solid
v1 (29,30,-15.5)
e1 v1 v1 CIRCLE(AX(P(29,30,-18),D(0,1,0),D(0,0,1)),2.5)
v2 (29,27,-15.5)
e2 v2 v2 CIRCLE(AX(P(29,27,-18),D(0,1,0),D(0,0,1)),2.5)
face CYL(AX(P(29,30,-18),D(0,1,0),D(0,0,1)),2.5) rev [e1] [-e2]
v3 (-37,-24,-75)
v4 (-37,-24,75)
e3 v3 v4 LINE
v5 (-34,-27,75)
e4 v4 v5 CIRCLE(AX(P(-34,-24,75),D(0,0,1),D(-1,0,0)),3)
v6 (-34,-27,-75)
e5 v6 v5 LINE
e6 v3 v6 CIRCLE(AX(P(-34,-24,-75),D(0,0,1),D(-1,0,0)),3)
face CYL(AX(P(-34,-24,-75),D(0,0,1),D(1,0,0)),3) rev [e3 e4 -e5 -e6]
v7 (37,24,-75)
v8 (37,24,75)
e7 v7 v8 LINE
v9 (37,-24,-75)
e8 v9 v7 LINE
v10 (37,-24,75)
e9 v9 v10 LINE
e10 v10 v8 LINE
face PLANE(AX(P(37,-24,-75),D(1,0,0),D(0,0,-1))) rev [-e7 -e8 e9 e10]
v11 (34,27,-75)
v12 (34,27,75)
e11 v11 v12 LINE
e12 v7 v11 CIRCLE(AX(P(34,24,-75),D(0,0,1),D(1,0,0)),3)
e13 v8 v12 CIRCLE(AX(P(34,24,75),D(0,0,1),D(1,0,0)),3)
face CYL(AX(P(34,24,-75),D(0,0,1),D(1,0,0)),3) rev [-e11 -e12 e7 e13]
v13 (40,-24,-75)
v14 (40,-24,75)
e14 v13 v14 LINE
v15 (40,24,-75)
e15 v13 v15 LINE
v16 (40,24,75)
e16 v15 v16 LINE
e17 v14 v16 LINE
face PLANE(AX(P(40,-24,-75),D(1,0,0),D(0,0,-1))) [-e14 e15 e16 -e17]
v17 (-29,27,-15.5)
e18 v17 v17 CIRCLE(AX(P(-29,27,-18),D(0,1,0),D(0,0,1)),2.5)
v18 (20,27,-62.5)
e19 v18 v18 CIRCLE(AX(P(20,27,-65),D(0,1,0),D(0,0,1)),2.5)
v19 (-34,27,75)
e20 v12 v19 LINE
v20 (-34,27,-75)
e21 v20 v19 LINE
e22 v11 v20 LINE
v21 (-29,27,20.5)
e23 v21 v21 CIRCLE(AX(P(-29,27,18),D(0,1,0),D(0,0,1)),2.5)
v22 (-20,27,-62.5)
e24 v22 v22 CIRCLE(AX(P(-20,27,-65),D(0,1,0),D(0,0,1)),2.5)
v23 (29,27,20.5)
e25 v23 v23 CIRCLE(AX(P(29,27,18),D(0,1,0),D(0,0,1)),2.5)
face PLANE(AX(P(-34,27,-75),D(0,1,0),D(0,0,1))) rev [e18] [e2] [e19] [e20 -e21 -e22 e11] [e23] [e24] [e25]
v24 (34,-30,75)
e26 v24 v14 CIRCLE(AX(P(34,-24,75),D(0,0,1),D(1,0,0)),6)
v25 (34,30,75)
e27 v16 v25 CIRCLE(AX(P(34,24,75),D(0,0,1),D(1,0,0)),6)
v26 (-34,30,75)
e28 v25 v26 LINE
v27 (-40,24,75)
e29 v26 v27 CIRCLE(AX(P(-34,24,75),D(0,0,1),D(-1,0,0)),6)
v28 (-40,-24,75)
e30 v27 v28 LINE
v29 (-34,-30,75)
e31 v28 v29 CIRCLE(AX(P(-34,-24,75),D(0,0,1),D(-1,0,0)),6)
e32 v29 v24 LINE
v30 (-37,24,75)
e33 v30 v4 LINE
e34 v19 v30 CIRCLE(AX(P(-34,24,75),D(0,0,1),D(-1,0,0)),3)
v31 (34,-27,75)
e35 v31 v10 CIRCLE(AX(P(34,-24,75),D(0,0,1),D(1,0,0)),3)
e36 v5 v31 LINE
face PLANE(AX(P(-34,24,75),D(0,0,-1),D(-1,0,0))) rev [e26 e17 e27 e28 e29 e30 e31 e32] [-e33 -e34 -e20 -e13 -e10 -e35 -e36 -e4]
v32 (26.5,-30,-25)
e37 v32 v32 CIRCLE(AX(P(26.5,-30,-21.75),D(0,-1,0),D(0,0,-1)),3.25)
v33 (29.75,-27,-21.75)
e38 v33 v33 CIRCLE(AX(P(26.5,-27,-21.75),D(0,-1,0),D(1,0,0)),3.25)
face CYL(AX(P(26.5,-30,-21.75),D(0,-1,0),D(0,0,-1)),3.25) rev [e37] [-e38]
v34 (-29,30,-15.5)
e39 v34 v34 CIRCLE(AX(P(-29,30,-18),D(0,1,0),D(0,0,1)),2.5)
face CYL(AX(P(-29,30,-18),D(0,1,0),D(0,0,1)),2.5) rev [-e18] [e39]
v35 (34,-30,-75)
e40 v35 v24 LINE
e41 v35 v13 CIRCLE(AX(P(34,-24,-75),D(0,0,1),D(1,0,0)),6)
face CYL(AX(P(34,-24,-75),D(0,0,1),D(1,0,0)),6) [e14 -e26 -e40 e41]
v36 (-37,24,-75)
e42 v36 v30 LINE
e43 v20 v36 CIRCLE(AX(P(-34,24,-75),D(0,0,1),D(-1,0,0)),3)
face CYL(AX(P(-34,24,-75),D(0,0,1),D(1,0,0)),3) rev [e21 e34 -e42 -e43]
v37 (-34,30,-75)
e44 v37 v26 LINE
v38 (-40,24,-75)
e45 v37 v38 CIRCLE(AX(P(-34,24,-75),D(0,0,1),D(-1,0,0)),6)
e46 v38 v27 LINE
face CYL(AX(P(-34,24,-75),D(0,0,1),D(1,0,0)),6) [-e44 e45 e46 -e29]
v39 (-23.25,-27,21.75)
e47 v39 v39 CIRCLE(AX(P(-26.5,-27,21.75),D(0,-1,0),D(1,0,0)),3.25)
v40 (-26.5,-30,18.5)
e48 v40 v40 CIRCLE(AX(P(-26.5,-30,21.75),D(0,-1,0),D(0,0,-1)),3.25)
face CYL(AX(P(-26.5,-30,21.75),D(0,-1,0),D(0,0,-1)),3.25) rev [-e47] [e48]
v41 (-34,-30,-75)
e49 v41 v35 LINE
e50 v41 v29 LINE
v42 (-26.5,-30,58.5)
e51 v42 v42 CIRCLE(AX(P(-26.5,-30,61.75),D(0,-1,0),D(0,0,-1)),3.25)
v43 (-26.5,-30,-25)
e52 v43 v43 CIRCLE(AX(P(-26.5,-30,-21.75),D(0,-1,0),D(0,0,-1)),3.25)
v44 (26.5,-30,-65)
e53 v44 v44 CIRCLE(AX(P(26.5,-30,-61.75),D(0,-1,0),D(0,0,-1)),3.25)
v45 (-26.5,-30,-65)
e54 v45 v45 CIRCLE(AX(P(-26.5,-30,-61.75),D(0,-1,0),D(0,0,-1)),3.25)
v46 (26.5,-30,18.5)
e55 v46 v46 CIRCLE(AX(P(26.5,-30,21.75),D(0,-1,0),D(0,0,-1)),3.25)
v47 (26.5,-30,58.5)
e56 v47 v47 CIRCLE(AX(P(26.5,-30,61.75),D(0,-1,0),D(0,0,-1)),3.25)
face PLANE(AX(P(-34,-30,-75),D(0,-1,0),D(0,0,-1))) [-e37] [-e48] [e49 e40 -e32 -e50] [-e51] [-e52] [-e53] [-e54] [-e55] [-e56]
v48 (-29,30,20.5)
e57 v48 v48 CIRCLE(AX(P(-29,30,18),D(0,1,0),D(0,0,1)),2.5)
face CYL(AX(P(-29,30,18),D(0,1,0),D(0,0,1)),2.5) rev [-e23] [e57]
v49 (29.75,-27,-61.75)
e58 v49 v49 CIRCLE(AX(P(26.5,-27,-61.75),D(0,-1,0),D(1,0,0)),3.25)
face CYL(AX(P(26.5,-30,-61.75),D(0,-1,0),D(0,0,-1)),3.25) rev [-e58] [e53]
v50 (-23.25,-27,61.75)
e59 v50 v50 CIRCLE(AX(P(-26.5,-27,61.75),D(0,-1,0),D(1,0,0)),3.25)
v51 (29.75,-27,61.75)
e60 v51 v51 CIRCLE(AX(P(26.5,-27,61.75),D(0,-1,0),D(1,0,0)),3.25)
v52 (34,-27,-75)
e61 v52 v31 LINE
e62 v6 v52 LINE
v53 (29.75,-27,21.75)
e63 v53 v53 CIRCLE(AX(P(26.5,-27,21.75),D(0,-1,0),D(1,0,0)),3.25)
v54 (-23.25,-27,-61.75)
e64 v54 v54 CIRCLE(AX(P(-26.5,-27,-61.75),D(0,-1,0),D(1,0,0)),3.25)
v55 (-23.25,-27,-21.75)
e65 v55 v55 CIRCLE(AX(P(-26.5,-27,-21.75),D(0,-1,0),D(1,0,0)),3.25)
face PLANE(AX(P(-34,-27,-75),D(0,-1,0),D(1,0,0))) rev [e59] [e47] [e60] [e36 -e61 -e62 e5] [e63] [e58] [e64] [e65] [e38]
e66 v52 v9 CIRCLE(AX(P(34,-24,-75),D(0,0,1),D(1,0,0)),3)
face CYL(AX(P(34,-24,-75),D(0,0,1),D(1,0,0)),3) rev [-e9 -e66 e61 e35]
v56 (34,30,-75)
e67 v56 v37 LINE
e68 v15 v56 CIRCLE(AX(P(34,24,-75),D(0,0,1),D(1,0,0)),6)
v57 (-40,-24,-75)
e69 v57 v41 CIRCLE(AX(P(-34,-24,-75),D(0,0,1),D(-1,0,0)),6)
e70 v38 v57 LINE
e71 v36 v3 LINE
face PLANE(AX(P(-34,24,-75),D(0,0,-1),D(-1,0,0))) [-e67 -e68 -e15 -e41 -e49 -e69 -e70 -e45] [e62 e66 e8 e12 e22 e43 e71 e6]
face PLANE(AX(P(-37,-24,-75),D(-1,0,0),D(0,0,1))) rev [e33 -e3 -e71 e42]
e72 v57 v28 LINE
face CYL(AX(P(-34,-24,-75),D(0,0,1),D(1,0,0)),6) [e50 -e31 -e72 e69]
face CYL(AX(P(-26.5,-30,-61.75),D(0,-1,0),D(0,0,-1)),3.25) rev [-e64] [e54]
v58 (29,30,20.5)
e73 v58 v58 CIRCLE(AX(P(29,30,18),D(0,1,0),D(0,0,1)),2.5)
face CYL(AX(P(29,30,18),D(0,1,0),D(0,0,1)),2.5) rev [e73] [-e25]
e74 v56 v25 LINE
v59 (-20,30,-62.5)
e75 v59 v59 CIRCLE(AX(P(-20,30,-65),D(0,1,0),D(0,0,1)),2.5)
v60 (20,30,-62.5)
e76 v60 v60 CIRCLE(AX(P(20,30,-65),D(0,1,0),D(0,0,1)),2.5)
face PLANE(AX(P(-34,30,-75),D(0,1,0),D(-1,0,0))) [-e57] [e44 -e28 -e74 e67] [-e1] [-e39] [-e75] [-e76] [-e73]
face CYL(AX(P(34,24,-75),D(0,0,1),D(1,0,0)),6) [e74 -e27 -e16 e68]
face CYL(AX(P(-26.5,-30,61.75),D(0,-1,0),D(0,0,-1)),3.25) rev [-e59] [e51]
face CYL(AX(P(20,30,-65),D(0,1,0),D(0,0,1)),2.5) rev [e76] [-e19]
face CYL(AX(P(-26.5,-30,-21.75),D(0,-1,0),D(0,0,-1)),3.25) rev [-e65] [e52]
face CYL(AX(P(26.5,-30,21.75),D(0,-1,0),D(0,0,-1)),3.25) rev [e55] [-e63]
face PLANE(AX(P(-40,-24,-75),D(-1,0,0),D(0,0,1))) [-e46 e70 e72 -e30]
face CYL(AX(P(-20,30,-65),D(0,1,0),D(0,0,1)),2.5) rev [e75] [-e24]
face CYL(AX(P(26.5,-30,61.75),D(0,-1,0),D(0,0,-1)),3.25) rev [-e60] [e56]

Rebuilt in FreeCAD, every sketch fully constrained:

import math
import FreeCAD as App
import Part
import Sketcher

V = App.Vector

doc = App.newDocument("Part")
params = doc.addObject("Spreadsheet::Sheet", "Params")
for row, (alias, value) in enumerate([
    ("sketch1_radius", "6 mm"),
    ("sketch1_radius2", "3 mm"),
    ("sketch1_width", "68 mm"),
    ("sketch1_height", "48 mm"),
    ("pad1_length", "75 mm"),
    ("pad1_length2", "75 mm"),
    ("sketch2_diameter", "6.5 mm"),
    ("hole_diameter", "6.5 mm"),
    ("hole_depth", "3 mm"),
    ("sketch3_diameter", "5 mm"),
    ("hole2_diameter", "5 mm"),
    ("hole2_depth", "3 mm"),
], start=1):
    params.set(f"A{row}", alias)
    params.set(f"B{row}", "=" + value)
    params.setAlias(f"B{row}", alias)

body = doc.addObject("PartDesign::Body", "Body")

# Sketch on XY plane
sketch1 = body.newObject("Sketcher::SketchObject", "Sketch")
sketch1.AttachmentSupport = (doc.getObject("XY_Plane"), [""])
sketch1.MapMode = "FlatFace"
sketch1.addGeometry([
    Part.LineSegment(V(-34, -30, 0), V(34, -30, 0)),  # 0
    Part.ArcOfCircle(Part.Circle(V(34, -24, 0), V(0, 0, 1), 6), math.radians(-90), math.radians(0)),  # 1
    Part.LineSegment(V(40, -24, 0), V(40, 24, 0)),  # 2
    Part.ArcOfCircle(Part.Circle(V(34, 24, 0), V(0, 0, 1), 6), math.radians(0), math.radians(90)),  # 3
    Part.LineSegment(V(34, 30, 0), V(-34, 30, 0)),  # 4
    Part.ArcOfCircle(Part.Circle(V(-34, 24, 0), V(0, 0, 1), 6), math.radians(90), math.radians(180)),  # 5
    Part.LineSegment(V(-40, 24, 0), V(-40, -24, 0)),  # 6
    Part.ArcOfCircle(Part.Circle(V(-34, -24, 0), V(0, 0, 1), 6), math.radians(180), math.radians(270)),  # 7
    Part.ArcOfCircle(Part.Circle(V(-34, 24, 0), V(0, 0, 1), 3), math.radians(90), math.radians(180)),  # 8
    Part.LineSegment(V(-34, 27, 0), V(34, 27, 0)),  # 9
    Part.ArcOfCircle(Part.Circle(V(34, 24, 0), V(0, 0, 1), 3), math.radians(0), math.radians(90)),  # 10
    Part.LineSegment(V(37, 24, 0), V(37, -24, 0)),  # 11
    Part.ArcOfCircle(Part.Circle(V(34, -24, 0), V(0, 0, 1), 3), math.radians(-90), math.radians(0)),  # 12
    Part.LineSegment(V(34, -27, 0), V(-34, -27, 0)),  # 13
    Part.ArcOfCircle(Part.Circle(V(-34, -24, 0), V(0, 0, 1), 3), math.radians(180), math.radians(270)),  # 14
    Part.LineSegment(V(-37, -24, 0), V(-37, 24, 0)),  # 15
], False)
sketch1.addConstraint([
    Sketcher.Constraint("Tangent", 0, 2, 1, 1),
    Sketcher.Constraint("Tangent", 1, 2, 2, 1),
    Sketcher.Constraint("Tangent", 2, 2, 3, 1),
    Sketcher.Constraint("Tangent", 3, 2, 4, 1),
    Sketcher.Constraint("Tangent", 4, 2, 5, 1),
    Sketcher.Constraint("Tangent", 5, 2, 6, 1),
    Sketcher.Constraint("Tangent", 6, 2, 7, 1),
    Sketcher.Constraint("Tangent", 7, 2, 0, 1),
    Sketcher.Constraint("Tangent", 8, 1, 9, 1),
    Sketcher.Constraint("Tangent", 9, 2, 10, 2),
    Sketcher.Constraint("Tangent", 10, 1, 11, 1),
    Sketcher.Constraint("Tangent", 11, 2, 12, 2),
    Sketcher.Constraint("Tangent", 12, 1, 13, 1),
    Sketcher.Constraint("Tangent", 13, 2, 14, 2),
    Sketcher.Constraint("Tangent", 14, 1, 15, 1),
    Sketcher.Constraint("Tangent", 15, 2, 8, 2),
    Sketcher.Constraint("Horizontal", 0),
    Sketcher.Constraint("Vertical", 2),
    Sketcher.Constraint("Horizontal", 4),
    Sketcher.Constraint("Vertical", 6),
    Sketcher.Constraint("Horizontal", 9),
    Sketcher.Constraint("Vertical", 11),
    Sketcher.Constraint("Horizontal", 13),
    Sketcher.Constraint("Vertical", 15),
    Sketcher.Constraint("Coincident", 8, 3, 5, 3),
    Sketcher.Constraint("Coincident", 10, 3, 3, 3),
    Sketcher.Constraint("Coincident", 12, 3, 1, 3),
    Sketcher.Constraint("Equal", 1, 3),
    Sketcher.Constraint("Equal", 3, 5),
    Sketcher.Constraint("Equal", 5, 7),
    Sketcher.Constraint("Equal", 12, 14),
    Sketcher.Constraint("Symmetric", 1, 3, 5, 3, -1, 1),
    Sketcher.Constraint("Radius", 1, 6.0),
    Sketcher.Constraint("Radius", 8, 3.0),
    Sketcher.Constraint("DistanceX", 0, 1, 0, 2, 68.0),
    Sketcher.Constraint("DistanceY", 2, 1, 2, 2, 48.0),
])
sketch1.setExpression("Constraints[32]", "Params.sketch1_radius")
sketch1.setExpression("Constraints[33]", "Params.sketch1_radius2")
sketch1.setExpression("Constraints[34]", "Params.sketch1_width")
sketch1.setExpression("Constraints[35]", "Params.sketch1_height")
pad1 = body.newObject("PartDesign::Pad", "Pad")
pad1.Profile = sketch1
pad1.Type = "TwoLengths"
pad1.setExpression("Length", "Params.pad1_length")
pad1.setExpression("Length2", "Params.pad1_length2")

# Sketch on XZ plane
sketch2 = body.newObject("Sketcher::SketchObject", "Sketch001")
sketch2.AttachmentSupport = (doc.getObject("XZ_Plane"), [""])
sketch2.MapMode = "FlatFace"
sketch2.AttachmentOffset = App.Placement(V(0, 0, 30), App.Rotation())
sketch2.addGeometry([
    Part.Circle(V(-26.5, 61.8, 0), V(0, 0, 1), 3.2),  # 0
    Part.Circle(V(26.5, 61.8, 0), V(0, 0, 1), 3.2),  # 1
    Part.Circle(V(26.5, 21.8, 0), V(0, 0, 1), 3.2),  # 2
    Part.Circle(V(-26.5, 21.8, 0), V(0, 0, 1), 3.2),  # 3
    Part.Circle(V(-26.5, -21.8, 0), V(0, 0, 1), 3.2),  # 4
    Part.Circle(V(26.5, -21.8, 0), V(0, 0, 1), 3.2),  # 5
    Part.Circle(V(26.5, -61.8, 0), V(0, 0, 1), 3.2),  # 6
    Part.Circle(V(-26.5, -61.8, 0), V(0, 0, 1), 3.2),  # 7
], False)
sketch2.addConstraint([
    Sketcher.Constraint("Equal", 0, 1),
    Sketcher.Constraint("Equal", 1, 2),
    Sketcher.Constraint("Equal", 2, 3),
    Sketcher.Constraint("Equal", 3, 4),
    Sketcher.Constraint("Equal", 4, 5),
    Sketcher.Constraint("Equal", 5, 6),
    Sketcher.Constraint("Equal", 6, 7),
    Sketcher.Constraint("Symmetric", 2, 3, 4, 3, -1, 1),
    Sketcher.Constraint("Symmetric", 3, 3, 5, 3, -1, 1),
    Sketcher.Constraint("Symmetric", 0, 3, 6, 3, -1, 1),
    Sketcher.Constraint("Symmetric", 1, 3, 7, 3, -1, 1),
    Sketcher.Constraint("Symmetric", 0, 3, 1, 3, -2),
    Sketcher.Constraint("Symmetric", 2, 3, 3, 3, -2),
    Sketcher.Constraint("Vertical", 1, 3, 2, 3),
    Sketcher.Constraint("Diameter", 0, 6.5),
    Sketcher.Constraint("DistanceX", 0, 3, 1, 3, 53.0),
    Sketcher.Constraint("DistanceY", 2, 3, 1, 3, 40.0),
    Sketcher.Constraint("DistanceY", 4, 3, 3, 3, 43.5),
])
sketch2.setExpression("Constraints[14]", "Params.sketch2_diameter")
doc.recompute()
hole = body.newObject("PartDesign::Hole", "Hole")
hole.Profile = sketch2
hole.ThreadType = "None"
hole.setExpression("Diameter", "Params.hole_diameter")
hole.DepthType = "Dimension"
hole.setExpression("Depth", "Params.hole_depth")
hole.DrillPoint = "Flat"

# Sketch on XZ plane
sketch3 = body.newObject("Sketcher::SketchObject", "Sketch002")
sketch3.AttachmentSupport = (doc.getObject("XZ_Plane"), [""])
sketch3.MapMode = "FlatFace"
sketch3.AttachmentOffset = App.Placement(V(0, 0, -30), App.Rotation())
sketch3.addGeometry([
    Part.Circle(V(29, -18, 0), V(0, 0, 1), 2.5),  # 0
    Part.Circle(V(29, 18, 0), V(0, 0, 1), 2.5),  # 1
    Part.Circle(V(-29, 18, 0), V(0, 0, 1), 2.5),  # 2
    Part.Circle(V(-29, -18, 0), V(0, 0, 1), 2.5),  # 3
    Part.Circle(V(-20, -65, 0), V(0, 0, 1), 2.5),  # 4
    Part.Circle(V(20, -65, 0), V(0, 0, 1), 2.5),  # 5
], False)
sketch3.addConstraint([
    Sketcher.Constraint("Equal", 0, 1),
    Sketcher.Constraint("Equal", 1, 2),
    Sketcher.Constraint("Equal", 2, 3),
    Sketcher.Constraint("Equal", 3, 4),
    Sketcher.Constraint("Equal", 4, 5),
    Sketcher.Constraint("Symmetric", 0, 3, 2, 3, -1, 1),
    Sketcher.Constraint("Symmetric", 1, 3, 3, 3, -1, 1),
    Sketcher.Constraint("Symmetric", 1, 3, 2, 3, -2),
    Sketcher.Constraint("Symmetric", 4, 3, 5, 3, -2),
    Sketcher.Constraint("Diameter", 0, 5.0),
    Sketcher.Constraint("DistanceX", -1, 1, 0, 3, 29.0),
    Sketcher.Constraint("DistanceY", 0, 3, -1, 1, 18.0),
    Sketcher.Constraint("DistanceX", 4, 3, -1, 1, 20.0),
    Sketcher.Constraint("DistanceY", 4, 3, -1, 1, 65.0),
])
sketch3.setExpression("Constraints[9]", "Params.sketch3_diameter")
doc.recompute()
hole2 = body.newObject("PartDesign::Hole", "Hole001")
hole2.Profile = sketch3
hole2.ThreadType = "None"
hole2.setExpression("Diameter", "Params.hole2_diameter")
hole2.DepthType = "Dimension"
hole2.setExpression("Depth", "Params.hole2_depth")
hole2.DrillPoint = "Flat"
hole2.Reversed = True

doc.recompute()
